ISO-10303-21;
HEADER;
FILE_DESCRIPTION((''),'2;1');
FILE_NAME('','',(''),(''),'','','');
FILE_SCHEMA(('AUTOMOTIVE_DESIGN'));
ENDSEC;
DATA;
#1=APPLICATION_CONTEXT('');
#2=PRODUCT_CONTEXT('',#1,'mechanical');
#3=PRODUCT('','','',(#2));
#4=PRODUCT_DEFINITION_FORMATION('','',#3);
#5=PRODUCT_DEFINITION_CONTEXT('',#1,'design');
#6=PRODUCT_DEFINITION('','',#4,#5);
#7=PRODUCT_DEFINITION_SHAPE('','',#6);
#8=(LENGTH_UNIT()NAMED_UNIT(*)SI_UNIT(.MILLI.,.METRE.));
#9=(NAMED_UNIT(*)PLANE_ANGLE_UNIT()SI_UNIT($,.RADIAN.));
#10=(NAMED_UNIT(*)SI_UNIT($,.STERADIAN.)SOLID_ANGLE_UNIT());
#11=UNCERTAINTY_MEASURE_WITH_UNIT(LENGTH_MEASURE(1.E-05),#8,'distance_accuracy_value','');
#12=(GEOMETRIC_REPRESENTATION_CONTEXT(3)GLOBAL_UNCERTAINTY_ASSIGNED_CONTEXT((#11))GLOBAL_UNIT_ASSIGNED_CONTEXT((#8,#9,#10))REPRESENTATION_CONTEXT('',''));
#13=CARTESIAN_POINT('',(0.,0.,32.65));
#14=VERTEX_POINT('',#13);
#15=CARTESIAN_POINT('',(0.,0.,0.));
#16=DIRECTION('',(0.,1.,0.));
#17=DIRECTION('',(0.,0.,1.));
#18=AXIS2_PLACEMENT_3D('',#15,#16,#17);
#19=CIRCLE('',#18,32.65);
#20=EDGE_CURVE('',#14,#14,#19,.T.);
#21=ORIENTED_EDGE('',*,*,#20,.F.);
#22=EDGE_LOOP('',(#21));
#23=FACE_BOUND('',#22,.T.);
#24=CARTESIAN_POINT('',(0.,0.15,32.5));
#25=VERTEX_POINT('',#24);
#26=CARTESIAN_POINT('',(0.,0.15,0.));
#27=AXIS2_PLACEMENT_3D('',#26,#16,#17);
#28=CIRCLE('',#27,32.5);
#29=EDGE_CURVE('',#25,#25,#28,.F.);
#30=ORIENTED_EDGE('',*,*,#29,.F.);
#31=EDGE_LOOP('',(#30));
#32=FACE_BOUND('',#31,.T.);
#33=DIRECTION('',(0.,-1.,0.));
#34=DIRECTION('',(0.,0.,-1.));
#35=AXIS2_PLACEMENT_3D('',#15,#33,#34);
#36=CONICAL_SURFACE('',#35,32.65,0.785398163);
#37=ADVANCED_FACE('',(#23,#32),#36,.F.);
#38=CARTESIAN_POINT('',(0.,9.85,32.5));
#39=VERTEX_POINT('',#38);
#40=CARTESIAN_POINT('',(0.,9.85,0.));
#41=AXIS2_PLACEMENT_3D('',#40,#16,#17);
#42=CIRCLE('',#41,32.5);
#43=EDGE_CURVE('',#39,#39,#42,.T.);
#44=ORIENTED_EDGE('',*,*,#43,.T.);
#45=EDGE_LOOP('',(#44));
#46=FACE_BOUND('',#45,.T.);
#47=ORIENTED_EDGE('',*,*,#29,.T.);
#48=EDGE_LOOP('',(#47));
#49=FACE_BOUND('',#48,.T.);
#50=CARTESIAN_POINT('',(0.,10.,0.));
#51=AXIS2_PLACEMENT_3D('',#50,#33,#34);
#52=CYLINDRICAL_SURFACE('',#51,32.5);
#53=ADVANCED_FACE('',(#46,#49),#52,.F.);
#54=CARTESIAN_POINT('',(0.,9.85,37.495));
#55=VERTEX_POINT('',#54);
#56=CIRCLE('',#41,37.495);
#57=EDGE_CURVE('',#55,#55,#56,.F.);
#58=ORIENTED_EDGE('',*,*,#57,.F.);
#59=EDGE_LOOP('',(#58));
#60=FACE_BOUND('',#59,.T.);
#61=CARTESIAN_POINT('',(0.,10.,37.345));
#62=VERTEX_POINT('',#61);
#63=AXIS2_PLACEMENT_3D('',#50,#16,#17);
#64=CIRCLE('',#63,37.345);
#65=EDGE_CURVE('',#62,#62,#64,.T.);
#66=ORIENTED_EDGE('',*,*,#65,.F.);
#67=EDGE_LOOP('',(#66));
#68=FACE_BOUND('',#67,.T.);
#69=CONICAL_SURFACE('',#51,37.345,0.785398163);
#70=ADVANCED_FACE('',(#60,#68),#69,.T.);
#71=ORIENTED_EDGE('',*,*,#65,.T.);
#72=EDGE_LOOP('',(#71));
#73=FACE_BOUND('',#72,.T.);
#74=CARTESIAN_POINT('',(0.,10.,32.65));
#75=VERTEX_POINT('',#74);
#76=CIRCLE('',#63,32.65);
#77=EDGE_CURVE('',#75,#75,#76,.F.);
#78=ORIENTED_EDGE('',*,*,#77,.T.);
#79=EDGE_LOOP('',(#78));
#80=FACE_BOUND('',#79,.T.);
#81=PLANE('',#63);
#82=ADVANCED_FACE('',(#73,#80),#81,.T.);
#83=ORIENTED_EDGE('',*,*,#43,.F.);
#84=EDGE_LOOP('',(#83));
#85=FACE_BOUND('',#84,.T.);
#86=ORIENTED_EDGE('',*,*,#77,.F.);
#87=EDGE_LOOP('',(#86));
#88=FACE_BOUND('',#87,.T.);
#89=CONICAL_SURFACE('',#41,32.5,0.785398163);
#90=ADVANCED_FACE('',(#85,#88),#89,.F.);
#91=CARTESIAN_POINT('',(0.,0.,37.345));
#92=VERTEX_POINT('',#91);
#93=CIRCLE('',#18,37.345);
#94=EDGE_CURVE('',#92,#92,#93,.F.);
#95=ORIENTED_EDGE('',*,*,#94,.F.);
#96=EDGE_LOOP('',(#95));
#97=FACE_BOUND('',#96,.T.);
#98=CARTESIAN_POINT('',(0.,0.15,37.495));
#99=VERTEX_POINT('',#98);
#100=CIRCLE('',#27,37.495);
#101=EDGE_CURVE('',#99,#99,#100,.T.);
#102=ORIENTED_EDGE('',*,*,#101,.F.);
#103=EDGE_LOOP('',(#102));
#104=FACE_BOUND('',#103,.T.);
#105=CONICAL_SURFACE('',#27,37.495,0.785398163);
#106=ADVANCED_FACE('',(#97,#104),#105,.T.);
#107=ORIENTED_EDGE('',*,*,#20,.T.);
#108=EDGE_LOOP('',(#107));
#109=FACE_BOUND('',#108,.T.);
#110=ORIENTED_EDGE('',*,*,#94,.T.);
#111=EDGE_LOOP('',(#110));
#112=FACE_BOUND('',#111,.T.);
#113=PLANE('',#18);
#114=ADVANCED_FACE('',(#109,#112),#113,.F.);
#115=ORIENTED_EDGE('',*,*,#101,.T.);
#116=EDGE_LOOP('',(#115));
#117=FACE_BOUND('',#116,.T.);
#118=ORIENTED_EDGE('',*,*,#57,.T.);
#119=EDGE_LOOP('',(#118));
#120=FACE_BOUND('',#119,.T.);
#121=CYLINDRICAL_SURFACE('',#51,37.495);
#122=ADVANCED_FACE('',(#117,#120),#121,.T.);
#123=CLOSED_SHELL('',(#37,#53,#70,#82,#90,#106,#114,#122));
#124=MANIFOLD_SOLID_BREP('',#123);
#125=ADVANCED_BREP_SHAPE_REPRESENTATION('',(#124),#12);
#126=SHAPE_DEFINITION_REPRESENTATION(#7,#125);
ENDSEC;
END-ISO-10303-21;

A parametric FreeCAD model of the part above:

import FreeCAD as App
import Part
import Sketcher

V = App.Vector


def edges_at(feature, points):
    """Names of the edges that pass closest to the given points."""
    edges = feature.Shape.Edges
    near = lambda p: min(range(len(edges)), key=lambda i: edges[i].distToShape(Part.Vertex(*p))[0])
    return sorted({f"Edge{near(p) + 1}" for p in points})

doc = App.newDocument("Part")
body = doc.addObject("PartDesign::Body", "Body")

sketch1 = doc.addObject("Sketcher::SketchObject", "Sketch")
body.addObject(sketch1)
sketch1.AttachmentSupport = (doc.XZ_Plane, [""])
sketch1.MapMode = "FlatFace"
sketch1.addGeometry([
    Part.Circle(V(0, 0, 0), V(0, 0, 1), 37),
    Part.Circle(V(0, 0, 0), V(0, 0, 1), 32),
], False)
sketch1.addConstraint([
    Sketcher.Constraint("Coincident", 0, 3, -1, 1),
    Sketcher.Constraint("Coincident", 1, 3, -1, 1),
    Sketcher.Constraint("Diameter", 1, 65.0),
    Sketcher.Constraint("Diameter", 0, 74.99),
])
pad1 = doc.addObject("PartDesign::Pad", "Pad")
body.addObject(pad1)
pad1.Profile = sketch1
pad1.Length = 10
pad1.Reversed = True
doc.recompute()

chamfer = doc.addObject("PartDesign::Chamfer", "Chamfer")
body.addObject(chamfer)
chamfer.Base = (pad1, edges_at(pad1, [
    (0, 0, -37.495),
    (0, 10, -37.495),
    (0, 0, -32.5),
    (0, 10, -32.5),
]))
chamfer.Size = 0.15

doc.recompute()
